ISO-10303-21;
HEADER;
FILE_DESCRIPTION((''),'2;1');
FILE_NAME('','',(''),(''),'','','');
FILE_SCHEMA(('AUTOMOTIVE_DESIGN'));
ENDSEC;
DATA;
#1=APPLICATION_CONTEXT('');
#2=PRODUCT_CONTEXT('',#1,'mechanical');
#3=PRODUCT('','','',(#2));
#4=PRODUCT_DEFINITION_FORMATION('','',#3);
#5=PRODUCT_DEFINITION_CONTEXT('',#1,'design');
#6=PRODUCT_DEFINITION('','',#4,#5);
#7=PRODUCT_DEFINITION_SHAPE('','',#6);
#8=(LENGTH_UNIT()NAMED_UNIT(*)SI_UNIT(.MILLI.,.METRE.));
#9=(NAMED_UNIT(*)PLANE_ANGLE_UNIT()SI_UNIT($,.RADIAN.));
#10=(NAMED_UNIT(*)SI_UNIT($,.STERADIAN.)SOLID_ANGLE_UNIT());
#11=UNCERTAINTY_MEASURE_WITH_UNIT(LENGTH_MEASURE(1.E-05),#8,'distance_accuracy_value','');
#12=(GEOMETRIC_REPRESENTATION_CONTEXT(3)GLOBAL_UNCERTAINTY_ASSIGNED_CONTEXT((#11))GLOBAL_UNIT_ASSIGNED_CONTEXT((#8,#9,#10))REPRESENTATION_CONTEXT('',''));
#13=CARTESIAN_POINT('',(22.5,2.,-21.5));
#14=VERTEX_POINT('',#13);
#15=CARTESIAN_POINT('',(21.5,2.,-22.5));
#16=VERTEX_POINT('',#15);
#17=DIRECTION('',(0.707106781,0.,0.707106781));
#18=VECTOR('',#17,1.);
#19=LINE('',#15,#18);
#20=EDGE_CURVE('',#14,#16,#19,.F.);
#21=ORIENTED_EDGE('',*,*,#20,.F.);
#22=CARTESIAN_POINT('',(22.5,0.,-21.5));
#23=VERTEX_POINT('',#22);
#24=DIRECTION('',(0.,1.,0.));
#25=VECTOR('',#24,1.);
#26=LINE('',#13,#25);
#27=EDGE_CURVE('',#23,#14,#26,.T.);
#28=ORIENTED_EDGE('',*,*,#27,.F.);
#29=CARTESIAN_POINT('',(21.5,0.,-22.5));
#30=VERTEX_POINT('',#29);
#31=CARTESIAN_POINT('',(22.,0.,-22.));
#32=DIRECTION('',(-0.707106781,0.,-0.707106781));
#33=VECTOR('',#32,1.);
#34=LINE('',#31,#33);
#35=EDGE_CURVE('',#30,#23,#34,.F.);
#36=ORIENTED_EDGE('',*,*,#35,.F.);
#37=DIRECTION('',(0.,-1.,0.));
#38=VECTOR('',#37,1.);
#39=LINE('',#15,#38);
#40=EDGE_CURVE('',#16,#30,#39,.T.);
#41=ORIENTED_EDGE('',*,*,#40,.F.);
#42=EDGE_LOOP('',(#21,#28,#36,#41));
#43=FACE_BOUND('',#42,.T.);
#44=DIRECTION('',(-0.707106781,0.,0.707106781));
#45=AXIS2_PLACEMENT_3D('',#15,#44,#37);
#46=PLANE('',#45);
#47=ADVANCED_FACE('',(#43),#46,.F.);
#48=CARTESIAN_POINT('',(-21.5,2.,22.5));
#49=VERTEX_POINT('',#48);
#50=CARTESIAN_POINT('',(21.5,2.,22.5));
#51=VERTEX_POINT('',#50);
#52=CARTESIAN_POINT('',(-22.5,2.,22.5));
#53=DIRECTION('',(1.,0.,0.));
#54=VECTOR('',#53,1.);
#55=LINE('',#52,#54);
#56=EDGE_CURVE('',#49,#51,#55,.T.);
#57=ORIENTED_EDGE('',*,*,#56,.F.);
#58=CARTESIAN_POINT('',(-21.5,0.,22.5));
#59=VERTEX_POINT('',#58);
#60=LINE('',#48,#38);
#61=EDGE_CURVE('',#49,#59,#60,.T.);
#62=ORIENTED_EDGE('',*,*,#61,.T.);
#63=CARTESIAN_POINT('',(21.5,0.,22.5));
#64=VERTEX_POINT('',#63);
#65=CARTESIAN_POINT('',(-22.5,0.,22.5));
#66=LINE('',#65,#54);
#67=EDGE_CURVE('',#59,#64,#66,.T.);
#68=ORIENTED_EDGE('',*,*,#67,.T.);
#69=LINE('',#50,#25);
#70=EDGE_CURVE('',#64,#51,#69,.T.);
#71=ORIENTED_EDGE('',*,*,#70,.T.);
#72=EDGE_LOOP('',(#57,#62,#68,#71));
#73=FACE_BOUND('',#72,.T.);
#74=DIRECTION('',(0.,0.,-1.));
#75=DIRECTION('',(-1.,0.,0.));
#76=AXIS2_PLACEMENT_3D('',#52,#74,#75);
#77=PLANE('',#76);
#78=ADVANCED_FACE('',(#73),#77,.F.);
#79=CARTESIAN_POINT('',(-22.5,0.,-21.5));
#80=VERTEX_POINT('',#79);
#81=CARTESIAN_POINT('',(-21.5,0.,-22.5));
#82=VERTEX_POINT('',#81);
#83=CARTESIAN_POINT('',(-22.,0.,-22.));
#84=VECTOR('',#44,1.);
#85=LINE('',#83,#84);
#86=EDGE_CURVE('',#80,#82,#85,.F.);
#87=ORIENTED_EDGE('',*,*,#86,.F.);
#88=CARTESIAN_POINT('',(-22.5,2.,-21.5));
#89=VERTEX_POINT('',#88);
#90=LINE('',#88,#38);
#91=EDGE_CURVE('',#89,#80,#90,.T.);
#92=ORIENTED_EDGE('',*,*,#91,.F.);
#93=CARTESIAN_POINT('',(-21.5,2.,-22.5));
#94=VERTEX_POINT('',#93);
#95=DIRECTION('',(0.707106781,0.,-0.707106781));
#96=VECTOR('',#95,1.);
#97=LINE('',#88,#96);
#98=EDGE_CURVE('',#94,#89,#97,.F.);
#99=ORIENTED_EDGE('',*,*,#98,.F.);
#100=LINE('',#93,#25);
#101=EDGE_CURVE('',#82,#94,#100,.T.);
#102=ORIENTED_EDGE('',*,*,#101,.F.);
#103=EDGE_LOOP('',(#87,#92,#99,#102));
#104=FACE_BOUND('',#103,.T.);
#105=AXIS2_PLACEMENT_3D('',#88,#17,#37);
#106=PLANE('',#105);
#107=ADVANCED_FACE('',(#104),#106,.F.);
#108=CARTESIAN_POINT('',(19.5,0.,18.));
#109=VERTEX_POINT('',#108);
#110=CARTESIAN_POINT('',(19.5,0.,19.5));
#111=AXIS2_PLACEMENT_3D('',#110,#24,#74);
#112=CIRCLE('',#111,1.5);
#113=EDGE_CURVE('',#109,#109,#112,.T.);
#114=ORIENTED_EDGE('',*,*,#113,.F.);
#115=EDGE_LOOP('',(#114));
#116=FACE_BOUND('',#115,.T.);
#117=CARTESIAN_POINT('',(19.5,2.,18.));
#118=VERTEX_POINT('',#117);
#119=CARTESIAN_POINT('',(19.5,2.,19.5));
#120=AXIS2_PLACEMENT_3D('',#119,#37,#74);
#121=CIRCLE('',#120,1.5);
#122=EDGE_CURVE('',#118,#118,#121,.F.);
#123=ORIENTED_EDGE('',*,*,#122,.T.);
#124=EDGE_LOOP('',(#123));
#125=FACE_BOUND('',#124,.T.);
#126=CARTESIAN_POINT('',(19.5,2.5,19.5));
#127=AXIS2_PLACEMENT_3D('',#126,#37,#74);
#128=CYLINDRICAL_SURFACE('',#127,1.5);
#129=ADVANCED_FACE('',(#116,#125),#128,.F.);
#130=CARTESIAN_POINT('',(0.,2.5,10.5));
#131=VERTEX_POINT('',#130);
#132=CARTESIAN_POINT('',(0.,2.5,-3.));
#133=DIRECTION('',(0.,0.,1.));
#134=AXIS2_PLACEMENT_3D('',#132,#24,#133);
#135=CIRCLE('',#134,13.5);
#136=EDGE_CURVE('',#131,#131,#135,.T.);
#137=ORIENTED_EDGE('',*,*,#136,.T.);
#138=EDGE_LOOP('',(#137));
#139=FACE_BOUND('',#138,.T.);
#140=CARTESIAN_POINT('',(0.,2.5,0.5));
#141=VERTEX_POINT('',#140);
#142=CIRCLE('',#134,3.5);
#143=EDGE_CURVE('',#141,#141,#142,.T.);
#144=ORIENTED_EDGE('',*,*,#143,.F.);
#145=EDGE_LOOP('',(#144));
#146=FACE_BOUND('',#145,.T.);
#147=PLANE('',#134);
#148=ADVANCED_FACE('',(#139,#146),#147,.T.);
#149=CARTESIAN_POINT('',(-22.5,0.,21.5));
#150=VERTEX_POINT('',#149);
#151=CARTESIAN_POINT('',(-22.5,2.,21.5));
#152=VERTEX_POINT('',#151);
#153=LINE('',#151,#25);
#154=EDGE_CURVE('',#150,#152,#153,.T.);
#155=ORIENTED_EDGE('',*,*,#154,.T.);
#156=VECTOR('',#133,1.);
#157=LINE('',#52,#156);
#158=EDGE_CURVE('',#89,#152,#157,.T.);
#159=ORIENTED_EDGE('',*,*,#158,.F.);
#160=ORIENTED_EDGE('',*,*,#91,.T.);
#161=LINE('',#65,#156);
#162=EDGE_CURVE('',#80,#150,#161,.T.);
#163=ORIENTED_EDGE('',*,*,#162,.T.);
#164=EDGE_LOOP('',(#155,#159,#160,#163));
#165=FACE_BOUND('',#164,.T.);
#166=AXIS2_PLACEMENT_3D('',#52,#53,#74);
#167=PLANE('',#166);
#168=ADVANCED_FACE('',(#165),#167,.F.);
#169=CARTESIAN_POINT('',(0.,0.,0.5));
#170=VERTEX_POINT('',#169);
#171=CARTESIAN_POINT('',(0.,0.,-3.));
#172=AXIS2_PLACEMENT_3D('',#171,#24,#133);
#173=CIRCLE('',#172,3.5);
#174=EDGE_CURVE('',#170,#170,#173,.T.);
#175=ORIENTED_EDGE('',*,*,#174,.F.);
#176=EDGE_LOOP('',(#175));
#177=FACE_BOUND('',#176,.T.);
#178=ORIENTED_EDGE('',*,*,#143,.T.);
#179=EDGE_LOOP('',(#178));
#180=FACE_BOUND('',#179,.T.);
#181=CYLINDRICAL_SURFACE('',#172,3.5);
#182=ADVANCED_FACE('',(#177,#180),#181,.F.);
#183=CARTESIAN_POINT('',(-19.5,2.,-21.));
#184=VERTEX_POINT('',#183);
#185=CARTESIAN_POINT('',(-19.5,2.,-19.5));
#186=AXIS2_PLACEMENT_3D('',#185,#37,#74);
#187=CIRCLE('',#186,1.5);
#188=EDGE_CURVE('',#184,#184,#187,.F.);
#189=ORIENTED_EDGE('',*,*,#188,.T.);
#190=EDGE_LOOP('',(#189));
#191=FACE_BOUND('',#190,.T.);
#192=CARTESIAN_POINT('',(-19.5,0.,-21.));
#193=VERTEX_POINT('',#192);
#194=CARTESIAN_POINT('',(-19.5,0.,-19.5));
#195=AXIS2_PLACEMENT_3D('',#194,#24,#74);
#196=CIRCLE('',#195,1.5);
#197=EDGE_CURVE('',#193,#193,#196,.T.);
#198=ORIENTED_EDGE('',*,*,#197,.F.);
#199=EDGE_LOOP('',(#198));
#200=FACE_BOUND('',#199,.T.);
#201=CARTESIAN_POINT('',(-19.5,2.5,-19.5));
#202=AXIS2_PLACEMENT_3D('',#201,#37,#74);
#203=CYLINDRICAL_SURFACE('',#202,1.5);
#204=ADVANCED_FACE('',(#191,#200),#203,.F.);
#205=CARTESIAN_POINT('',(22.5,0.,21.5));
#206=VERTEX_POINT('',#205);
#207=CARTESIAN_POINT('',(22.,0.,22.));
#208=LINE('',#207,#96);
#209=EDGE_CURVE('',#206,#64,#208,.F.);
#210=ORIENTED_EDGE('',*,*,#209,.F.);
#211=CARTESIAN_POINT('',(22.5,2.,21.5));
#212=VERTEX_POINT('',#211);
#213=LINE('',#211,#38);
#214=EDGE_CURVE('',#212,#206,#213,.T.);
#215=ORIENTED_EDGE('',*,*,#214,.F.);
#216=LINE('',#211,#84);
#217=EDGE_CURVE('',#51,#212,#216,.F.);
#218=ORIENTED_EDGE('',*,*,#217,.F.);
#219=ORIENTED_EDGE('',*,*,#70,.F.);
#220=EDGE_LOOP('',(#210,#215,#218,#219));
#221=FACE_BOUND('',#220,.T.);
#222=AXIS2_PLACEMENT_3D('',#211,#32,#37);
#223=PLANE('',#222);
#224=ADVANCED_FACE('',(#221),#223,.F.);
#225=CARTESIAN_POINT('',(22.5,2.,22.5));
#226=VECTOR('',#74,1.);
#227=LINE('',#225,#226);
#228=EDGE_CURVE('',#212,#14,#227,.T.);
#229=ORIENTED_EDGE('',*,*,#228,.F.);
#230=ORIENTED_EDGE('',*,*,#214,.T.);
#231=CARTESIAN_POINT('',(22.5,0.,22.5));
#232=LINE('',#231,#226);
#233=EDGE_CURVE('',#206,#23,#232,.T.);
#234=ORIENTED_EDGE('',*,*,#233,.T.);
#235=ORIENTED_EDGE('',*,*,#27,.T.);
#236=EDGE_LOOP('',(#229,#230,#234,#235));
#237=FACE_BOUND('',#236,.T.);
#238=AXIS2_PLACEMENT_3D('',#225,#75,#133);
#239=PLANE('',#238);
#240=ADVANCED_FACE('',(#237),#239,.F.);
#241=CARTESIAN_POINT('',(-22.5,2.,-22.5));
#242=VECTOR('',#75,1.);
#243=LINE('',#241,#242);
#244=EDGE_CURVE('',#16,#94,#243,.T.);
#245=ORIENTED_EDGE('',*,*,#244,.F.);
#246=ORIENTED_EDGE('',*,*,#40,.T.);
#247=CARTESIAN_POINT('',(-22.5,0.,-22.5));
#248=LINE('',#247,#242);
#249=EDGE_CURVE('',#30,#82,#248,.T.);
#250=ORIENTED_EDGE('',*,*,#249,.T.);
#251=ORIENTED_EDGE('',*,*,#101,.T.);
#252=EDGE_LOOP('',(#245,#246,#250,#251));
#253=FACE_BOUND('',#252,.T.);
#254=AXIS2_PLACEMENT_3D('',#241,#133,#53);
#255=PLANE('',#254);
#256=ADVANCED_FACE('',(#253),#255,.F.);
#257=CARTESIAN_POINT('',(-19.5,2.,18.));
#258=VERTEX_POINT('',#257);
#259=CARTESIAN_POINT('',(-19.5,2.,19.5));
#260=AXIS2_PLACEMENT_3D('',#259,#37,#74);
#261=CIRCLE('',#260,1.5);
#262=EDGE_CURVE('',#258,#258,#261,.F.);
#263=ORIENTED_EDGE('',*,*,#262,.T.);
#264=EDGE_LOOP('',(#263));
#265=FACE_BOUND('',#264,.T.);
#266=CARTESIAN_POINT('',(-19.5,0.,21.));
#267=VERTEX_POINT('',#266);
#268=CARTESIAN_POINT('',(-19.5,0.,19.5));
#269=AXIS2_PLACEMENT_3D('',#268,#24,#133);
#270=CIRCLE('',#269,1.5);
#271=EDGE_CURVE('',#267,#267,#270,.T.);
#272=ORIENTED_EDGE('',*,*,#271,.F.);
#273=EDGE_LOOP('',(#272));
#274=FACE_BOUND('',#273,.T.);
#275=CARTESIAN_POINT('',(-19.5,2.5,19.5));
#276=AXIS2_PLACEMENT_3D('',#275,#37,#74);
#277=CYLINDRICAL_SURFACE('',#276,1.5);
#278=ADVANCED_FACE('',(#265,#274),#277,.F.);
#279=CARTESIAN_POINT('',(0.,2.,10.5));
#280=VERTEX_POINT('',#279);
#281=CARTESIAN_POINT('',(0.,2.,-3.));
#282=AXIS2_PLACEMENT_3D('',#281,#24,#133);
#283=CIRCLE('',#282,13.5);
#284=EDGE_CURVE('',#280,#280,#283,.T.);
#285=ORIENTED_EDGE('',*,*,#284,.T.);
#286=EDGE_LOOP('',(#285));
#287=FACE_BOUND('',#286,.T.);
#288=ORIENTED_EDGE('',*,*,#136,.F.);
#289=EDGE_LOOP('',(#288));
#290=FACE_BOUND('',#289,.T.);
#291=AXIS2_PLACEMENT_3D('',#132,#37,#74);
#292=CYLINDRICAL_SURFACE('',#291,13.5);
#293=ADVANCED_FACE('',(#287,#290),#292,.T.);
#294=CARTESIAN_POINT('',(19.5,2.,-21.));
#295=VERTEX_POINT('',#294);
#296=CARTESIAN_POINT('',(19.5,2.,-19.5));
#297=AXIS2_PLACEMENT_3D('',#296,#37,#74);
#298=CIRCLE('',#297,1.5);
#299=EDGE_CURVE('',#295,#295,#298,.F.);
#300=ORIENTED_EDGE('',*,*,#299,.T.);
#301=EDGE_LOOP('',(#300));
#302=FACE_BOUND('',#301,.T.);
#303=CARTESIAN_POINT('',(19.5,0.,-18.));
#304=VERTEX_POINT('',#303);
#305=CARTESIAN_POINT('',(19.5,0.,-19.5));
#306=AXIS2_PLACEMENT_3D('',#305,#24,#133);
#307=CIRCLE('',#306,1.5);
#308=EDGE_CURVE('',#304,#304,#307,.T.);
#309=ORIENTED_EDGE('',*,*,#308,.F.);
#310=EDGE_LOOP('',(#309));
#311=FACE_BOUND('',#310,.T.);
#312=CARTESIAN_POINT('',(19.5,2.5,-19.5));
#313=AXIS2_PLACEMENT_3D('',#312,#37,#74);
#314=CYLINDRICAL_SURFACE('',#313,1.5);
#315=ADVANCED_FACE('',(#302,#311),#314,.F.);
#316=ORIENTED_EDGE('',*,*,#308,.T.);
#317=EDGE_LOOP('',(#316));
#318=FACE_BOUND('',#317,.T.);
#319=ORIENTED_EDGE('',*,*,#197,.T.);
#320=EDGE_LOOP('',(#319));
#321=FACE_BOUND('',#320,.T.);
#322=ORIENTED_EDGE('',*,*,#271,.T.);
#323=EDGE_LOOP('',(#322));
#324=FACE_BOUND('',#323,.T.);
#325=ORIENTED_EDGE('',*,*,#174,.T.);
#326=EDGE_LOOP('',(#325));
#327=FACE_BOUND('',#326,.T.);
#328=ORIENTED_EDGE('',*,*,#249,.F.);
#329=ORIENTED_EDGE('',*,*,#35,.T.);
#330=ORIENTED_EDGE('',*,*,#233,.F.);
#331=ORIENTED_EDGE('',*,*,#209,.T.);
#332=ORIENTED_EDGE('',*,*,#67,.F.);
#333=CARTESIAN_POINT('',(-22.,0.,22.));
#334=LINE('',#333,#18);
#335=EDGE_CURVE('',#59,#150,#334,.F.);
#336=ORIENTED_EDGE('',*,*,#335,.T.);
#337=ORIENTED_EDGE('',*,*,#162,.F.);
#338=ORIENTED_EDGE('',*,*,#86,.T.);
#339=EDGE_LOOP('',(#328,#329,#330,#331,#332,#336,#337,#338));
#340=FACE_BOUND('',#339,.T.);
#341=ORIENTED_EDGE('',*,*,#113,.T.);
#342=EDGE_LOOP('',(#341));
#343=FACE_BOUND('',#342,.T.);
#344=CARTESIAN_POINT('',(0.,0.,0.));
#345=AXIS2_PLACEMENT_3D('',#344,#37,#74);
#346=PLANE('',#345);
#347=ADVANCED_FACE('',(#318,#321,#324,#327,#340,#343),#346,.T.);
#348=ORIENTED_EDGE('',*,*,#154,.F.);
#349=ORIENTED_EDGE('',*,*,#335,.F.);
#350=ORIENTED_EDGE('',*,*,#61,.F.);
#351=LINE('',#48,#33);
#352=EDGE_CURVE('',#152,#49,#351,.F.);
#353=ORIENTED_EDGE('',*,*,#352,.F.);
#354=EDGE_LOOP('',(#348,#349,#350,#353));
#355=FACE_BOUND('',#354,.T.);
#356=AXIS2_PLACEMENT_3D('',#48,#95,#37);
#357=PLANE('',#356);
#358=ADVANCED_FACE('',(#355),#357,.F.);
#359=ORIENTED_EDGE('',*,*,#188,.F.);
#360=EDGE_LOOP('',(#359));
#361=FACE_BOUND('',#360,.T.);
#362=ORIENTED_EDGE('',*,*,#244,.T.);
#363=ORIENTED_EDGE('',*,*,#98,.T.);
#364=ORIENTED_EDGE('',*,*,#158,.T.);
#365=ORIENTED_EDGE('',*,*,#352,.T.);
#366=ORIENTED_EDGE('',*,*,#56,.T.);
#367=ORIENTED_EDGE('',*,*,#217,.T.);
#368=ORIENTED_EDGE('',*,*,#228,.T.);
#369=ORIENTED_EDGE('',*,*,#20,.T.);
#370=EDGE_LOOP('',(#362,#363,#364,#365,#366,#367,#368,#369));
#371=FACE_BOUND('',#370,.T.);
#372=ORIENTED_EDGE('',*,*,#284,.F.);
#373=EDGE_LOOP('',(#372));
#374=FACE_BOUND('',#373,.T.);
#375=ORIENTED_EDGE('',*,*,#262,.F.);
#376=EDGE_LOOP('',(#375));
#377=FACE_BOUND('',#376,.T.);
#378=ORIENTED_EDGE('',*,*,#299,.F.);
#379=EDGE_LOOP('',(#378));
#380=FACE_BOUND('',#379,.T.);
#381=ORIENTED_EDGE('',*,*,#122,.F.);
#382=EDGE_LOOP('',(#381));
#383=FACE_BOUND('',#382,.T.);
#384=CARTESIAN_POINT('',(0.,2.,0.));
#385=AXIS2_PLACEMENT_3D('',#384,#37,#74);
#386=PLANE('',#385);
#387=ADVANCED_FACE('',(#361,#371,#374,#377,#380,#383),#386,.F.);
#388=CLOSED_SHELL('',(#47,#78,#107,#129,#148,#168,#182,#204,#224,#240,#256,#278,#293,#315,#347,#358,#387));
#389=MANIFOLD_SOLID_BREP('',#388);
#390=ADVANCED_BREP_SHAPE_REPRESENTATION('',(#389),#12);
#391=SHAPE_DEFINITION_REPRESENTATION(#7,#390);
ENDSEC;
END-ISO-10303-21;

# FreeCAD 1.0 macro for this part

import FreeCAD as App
import Part
import Sketcher

V = App.Vector
Q = App.Units.Quantity


def edges_at(feature, points):
    """Names of the edges that pass closest to the given points."""
    edges = feature.Shape.Edges
    near = lambda p: min(range(len(edges)), key=lambda i: edges[i].distToShape(Part.Vertex(*p))[0])
    return sorted({f"Edge{near(p) + 1}" for p in points})

doc = App.newDocument("Part")
body = doc.addObject("PartDesign::Body", "Body")

sketch1 = body.newObject("Sketcher::SketchObject", "Sketch")
sketch1.AttachmentSupport = (doc.getObject("XZ_Plane"), [""])
sketch1.MapMode = "FlatFace"
sketch1.addGeometry([
    Part.LineSegment(V(-22.5, -22.5, 0), V(-22.5, 22.5, 0)),
    Part.LineSegment(V(-22.5, 22.5, 0), V(22.5, 22.5, 0)),
    Part.LineSegment(V(22.5, 22.5, 0), V(22.5, -22.5, 0)),
    Part.LineSegment(V(22.5, -22.5, 0), V(-22.5, -22.5, 0)),
], False)
sketch1.addConstraint([
    Sketcher.Constraint("Coincident", 0, 2, 1, 1),
    Sketcher.Constraint("Coincident", 1, 2, 2, 1),
    Sketcher.Constraint("Coincident", 2, 2, 3, 1),
    Sketcher.Constraint("Coincident", 3, 2, 0, 1),
    Sketcher.Constraint("Vertical", 0),
    Sketcher.Constraint("Horizontal", 1),
    Sketcher.Constraint("Vertical", 2),
    Sketcher.Constraint("Horizontal", 3),
    Sketcher.Constraint("Symmetric", 0, 2, 2, 2, -1, 1),
    Sketcher.Constraint("Equal", 3, 0),
    Sketcher.Constraint("DistanceX", 1, 1, 1, 2, Q("45 mm")),
])
pad1 = body.newObject("PartDesign::Pad", "Pad")
pad1.Profile = sketch1
pad1.Length = 2
pad1.Reversed = True

sketch2 = body.newObject("Sketcher::SketchObject", "Sketch001")
sketch2.AttachmentSupport = (doc.getObject("XZ_Plane"), [""])
sketch2.MapMode = "FlatFace"
sketch2.AttachmentOffset = App.Placement(V(0, 0, -2), App.Rotation())
sketch2.addGeometry(Part.Circle(V(0, -3, 0), V(0, 0, 1), 3.5), False)
sketch2.addConstraint([
    Sketcher.Constraint("PointOnObject", 0, 3, -2),
    Sketcher.Constraint("Diameter", 0, Q("7 mm")),
    Sketcher.Constraint("DistanceY", 0, 3, -1, 1, Q("3 mm")),
])
pocket1 = body.newObject("PartDesign::Pocket", "Pocket")
pocket1.Profile = sketch2
pocket1.Type = "ThroughAll"
pocket1.Reversed = True

sketch3 = body.newObject("Sketcher::SketchObject", "Sketch002")
sketch3.AttachmentSupport = (doc.getObject("XZ_Plane"), [""])
sketch3.MapMode = "FlatFace"
sketch3.AttachmentOffset = App.Placement(V(0, 0, -2.5), App.Rotation())
sketch3.addGeometry([
    Part.Circle(V(0, -3, 0), V(0, 0, 1), 13.5),
    Part.Circle(V(0, -3, 0), V(0, 0, 1), 3.5),
], False)
sketch3.addConstraint([
    Sketcher.Constraint("Coincident", 1, 3, 0, 3),
    Sketcher.Constraint("PointOnObject", 0, 3, -2),
    Sketcher.Constraint("Diameter", 0, Q("27 mm")),
    Sketcher.Constraint("Diameter", 1, Q("7 mm")),
    Sketcher.Constraint("DistanceY", 0, 3, -1, 1, Q("3 mm")),
])
pad2 = body.newObject("PartDesign::Pad", "Pad001")
pad2.Profile = sketch3
pad2.Length = 0.5

sketch4 = body.newObject("Sketcher::SketchObject", "Sketch003")
sketch4.AttachmentSupport = (doc.getObject("XZ_Plane"), [""])
sketch4.MapMode = "FlatFace"
sketch4.addGeometry([
    Part.Circle(V(19.5, -19.5, 0), V(0, 0, 1), 1.5),
    Part.Circle(V(-19.5, -19.5, 0), V(0, 0, 1), 1.5),
    Part.Circle(V(-19.5, 19.5, 0), V(0, 0, 1), 1.5),
    Part.Circle(V(19.5, 19.5, 0), V(0, 0, 1), 1.5),
], False)
sketch4.addConstraint([
    Sketcher.Constraint("Equal", 0, 1),
    Sketcher.Constraint("Equal", 1, 2),
    Sketcher.Constraint("Equal", 2, 3),
    Sketcher.Constraint("Symmetric", 0, 3, 2, 3, -1, 1),
    Sketcher.Constraint("Symmetric", 1, 3, 3, 3, -1, 1),
    Sketcher.Constraint("Symmetric", 0, 3, 1, 3, -2),
    Sketcher.Constraint("Diameter", 0, Q("3 mm")),
    Sketcher.Constraint("DistanceX", 1, 3, 0, 3, Q("39 mm")),
    Sketcher.Constraint("DistanceY", 1, 3, 2, 3, Q("39 mm")),
])
pocket2 = body.newObject("PartDesign::Pocket", "Pocket001")
pocket2.Profile = sketch4
pocket2.Type = "ThroughAll"
doc.recompute()

chamfer = body.newObject("PartDesign::Chamfer", "Chamfer")
chamfer.Base = (pocket2, edges_at(pocket2, [
    (22.5, 1, 22.5),
    (-22.5, 1, 22.5),
    (-22.5, 1, -22.5),
    (22.5, 1, -22.5),
]))
chamfer.Size = 1

doc.recompute()
